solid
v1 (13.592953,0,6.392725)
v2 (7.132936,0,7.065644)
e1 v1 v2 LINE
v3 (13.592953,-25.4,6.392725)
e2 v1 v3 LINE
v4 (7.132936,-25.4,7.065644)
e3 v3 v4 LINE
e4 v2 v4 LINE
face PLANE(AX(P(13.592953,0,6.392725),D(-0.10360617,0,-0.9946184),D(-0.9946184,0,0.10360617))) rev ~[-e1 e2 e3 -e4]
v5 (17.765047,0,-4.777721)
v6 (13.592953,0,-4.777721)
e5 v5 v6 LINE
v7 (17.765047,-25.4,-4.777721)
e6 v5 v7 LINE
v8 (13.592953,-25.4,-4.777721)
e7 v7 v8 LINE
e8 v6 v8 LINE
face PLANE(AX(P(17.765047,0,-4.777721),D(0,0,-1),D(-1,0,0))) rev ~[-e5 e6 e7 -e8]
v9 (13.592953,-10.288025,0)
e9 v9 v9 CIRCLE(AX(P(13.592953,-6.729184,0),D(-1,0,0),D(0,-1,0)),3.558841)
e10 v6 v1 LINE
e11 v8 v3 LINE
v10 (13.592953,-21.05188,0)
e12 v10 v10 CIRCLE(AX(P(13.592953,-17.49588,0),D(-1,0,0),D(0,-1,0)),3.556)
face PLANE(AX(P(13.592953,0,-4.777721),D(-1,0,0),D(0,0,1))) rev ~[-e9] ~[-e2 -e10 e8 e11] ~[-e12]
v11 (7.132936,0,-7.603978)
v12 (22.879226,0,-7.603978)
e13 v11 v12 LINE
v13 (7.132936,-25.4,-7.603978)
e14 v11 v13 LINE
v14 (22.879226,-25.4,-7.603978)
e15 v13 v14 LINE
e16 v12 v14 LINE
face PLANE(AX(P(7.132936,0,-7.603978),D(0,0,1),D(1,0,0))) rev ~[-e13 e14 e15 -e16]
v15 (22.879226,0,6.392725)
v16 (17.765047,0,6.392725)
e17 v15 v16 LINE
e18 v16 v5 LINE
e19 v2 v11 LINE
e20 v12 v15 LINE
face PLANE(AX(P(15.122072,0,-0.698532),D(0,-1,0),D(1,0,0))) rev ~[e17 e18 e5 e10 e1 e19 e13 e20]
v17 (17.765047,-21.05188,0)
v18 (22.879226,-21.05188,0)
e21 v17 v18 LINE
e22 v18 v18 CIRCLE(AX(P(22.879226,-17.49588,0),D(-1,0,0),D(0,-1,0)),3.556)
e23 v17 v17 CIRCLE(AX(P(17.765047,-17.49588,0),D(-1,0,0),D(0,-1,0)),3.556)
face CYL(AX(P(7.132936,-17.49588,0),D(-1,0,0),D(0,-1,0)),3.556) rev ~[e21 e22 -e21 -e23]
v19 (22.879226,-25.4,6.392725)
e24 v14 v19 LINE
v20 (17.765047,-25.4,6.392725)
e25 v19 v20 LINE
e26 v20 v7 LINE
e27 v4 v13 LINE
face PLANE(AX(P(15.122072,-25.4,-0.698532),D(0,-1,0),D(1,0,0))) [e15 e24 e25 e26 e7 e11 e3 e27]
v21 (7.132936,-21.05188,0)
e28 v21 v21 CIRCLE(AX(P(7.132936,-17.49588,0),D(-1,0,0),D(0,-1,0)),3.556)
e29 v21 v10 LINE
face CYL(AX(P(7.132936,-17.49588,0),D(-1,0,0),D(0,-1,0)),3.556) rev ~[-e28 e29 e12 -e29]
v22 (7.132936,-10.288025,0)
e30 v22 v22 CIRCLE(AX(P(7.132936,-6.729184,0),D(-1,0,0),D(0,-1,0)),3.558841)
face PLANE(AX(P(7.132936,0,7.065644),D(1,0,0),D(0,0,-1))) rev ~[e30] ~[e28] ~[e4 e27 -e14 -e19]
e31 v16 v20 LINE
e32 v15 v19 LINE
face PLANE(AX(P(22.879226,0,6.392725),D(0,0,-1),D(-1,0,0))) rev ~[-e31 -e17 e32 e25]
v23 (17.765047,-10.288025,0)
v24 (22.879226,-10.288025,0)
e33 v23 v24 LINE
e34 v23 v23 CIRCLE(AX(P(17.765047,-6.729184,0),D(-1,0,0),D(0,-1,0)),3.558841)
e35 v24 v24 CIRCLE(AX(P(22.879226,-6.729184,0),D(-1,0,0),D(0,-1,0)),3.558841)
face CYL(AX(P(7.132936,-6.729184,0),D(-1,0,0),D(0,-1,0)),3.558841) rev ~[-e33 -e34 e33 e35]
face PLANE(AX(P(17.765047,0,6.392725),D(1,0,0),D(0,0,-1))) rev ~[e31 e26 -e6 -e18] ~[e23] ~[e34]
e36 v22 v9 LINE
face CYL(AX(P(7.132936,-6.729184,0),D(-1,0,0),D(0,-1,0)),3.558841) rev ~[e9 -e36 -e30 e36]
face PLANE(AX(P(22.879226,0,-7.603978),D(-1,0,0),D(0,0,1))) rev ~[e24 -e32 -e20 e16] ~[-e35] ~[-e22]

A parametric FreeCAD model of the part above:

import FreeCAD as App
import Part
import Sketcher
from FreeCAD import Vector
Q = App.Units.Quantity

doc = App.newDocument("Part")
body = doc.addObject("PartDesign::Body", "Body")

# Sketch on XZ plane
sketch1 = body.newObject("Sketcher::SketchObject", "Sketch")
sketch1.AttachmentSupport = (doc.getObject("XZ_Plane"), [""])
sketch1.MapMode = "FlatFace"
sketch1.addGeometry([
    Part.LineSegment(Vector(13.6, 6.4, 0), Vector(7.1, 7.1, 0)),  # 0
    Part.LineSegment(Vector(7.1, 7.1, 0), Vector(7.1, -7.6, 0)),  # 1
    Part.LineSegment(Vector(7.1, -7.6, 0), Vector(22.9, -7.6, 0)),  # 2
    Part.LineSegment(Vector(22.9, -7.6, 0), Vector(22.9, 6.4, 0)),  # 3
    Part.LineSegment(Vector(22.9, 6.4, 0), Vector(17.8, 6.4, 0)),  # 4
    Part.LineSegment(Vector(17.8, 6.4, 0), Vector(17.8, -4.8, 0)),  # 5
    Part.LineSegment(Vector(17.8, -4.8, 0), Vector(13.6, -4.8, 0)),  # 6
    Part.LineSegment(Vector(13.6, -4.8, 0), Vector(13.6, 6.4, 0)),  # 7
], False)
sketch1.addConstraint([
    Sketcher.Constraint("Coincident", 0, 2, 1, 1),
    Sketcher.Constraint("Coincident", 1, 2, 2, 1),
    Sketcher.Constraint("Coincident", 2, 2, 3, 1),
    Sketcher.Constraint("Coincident", 3, 2, 4, 1),
    Sketcher.Constraint("Coincident", 4, 2, 5, 1),
    Sketcher.Constraint("Coincident", 5, 2, 6, 1),
    Sketcher.Constraint("Coincident", 6, 2, 7, 1),
    Sketcher.Constraint("Coincident", 7, 2, 0, 1),
    Sketcher.Constraint("Vertical", 1),
    Sketcher.Constraint("Horizontal", 2),
    Sketcher.Constraint("Vertical", 3),
    Sketcher.Constraint("Horizontal", 4),
    Sketcher.Constraint("Vertical", 5),
    Sketcher.Constraint("Horizontal", 6),
    Sketcher.Constraint("Vertical", 7),
    Sketcher.Constraint("Horizontal", 4, 2, 7, 2),
    Sketcher.Constraint("DistanceX", 2, 1, 2, 2, Q("15.74629 mm")),
    Sketcher.Constraint("DistanceX", 4, 2, 4, 1, Q("5.114179 mm")),
    Sketcher.Constraint("Distance", 0, Q("6.49497 mm")),
    Sketcher.Constraint("DistanceX", 6, 2, 6, 1, Q("4.172094 mm")),
    Sketcher.Constraint("DistanceY", 1, 2, 1, 1, Q("14.669622 mm")),
    Sketcher.Constraint("DistanceY", 5, 2, 5, 1, Q("11.170446 mm")),
    Sketcher.Constraint("DistanceY", 5, 2, -1, 1, Q("4.777721 mm")),
    Sketcher.Constraint("DistanceX", -1, 1, 0, 2, Q("7.132936 mm")),
])
pad1 = body.newObject("PartDesign::Pad", "Pad")
pad1.Profile = sketch1
pad1.Length = Q("1 in")

# Sketch on YZ plane
sketch2 = body.newObject("Sketcher::SketchObject", "Sketch001")
sketch2.AttachmentSupport = (doc.getObject("YZ_Plane"), [""])
sketch2.MapMode = "FlatFace"
sketch2.AttachmentOffset = App.Placement(Vector(0, 0, 7.132936), App.Rotation())
sketch2.addGeometry([
    Part.Circle(Vector(-6.7, 0, 0), Vector(0, 0, 1), 3.6),
    Part.Circle(Vector(-17.5, 0, 0), Vector(0, 0, 1), 3.6),
], False)
sketch2.addConstraint([
    Sketcher.Constraint("PointOnObject", 0, 3, -1),
    Sketcher.Constraint("PointOnObject", 1, 3, -1),
    Sketcher.Constraint("Diameter", 1, Q("0.28 in")),
    Sketcher.Constraint("Diameter", 0, Q("7.117682 mm")),
    Sketcher.Constraint("DistanceX", 1, 3, -1, 1, Q("17.49588 mm")),
    Sketcher.Constraint("DistanceX", 0, 3, -1, 1, Q("6.729184 mm")),
])
pocket1 = body.newObject("PartDesign::Pocket", "Pocket")
pocket1.Profile = sketch2
pocket1.Length = Q("1 in")
pocket1.Reversed = True

doc.recompute()
